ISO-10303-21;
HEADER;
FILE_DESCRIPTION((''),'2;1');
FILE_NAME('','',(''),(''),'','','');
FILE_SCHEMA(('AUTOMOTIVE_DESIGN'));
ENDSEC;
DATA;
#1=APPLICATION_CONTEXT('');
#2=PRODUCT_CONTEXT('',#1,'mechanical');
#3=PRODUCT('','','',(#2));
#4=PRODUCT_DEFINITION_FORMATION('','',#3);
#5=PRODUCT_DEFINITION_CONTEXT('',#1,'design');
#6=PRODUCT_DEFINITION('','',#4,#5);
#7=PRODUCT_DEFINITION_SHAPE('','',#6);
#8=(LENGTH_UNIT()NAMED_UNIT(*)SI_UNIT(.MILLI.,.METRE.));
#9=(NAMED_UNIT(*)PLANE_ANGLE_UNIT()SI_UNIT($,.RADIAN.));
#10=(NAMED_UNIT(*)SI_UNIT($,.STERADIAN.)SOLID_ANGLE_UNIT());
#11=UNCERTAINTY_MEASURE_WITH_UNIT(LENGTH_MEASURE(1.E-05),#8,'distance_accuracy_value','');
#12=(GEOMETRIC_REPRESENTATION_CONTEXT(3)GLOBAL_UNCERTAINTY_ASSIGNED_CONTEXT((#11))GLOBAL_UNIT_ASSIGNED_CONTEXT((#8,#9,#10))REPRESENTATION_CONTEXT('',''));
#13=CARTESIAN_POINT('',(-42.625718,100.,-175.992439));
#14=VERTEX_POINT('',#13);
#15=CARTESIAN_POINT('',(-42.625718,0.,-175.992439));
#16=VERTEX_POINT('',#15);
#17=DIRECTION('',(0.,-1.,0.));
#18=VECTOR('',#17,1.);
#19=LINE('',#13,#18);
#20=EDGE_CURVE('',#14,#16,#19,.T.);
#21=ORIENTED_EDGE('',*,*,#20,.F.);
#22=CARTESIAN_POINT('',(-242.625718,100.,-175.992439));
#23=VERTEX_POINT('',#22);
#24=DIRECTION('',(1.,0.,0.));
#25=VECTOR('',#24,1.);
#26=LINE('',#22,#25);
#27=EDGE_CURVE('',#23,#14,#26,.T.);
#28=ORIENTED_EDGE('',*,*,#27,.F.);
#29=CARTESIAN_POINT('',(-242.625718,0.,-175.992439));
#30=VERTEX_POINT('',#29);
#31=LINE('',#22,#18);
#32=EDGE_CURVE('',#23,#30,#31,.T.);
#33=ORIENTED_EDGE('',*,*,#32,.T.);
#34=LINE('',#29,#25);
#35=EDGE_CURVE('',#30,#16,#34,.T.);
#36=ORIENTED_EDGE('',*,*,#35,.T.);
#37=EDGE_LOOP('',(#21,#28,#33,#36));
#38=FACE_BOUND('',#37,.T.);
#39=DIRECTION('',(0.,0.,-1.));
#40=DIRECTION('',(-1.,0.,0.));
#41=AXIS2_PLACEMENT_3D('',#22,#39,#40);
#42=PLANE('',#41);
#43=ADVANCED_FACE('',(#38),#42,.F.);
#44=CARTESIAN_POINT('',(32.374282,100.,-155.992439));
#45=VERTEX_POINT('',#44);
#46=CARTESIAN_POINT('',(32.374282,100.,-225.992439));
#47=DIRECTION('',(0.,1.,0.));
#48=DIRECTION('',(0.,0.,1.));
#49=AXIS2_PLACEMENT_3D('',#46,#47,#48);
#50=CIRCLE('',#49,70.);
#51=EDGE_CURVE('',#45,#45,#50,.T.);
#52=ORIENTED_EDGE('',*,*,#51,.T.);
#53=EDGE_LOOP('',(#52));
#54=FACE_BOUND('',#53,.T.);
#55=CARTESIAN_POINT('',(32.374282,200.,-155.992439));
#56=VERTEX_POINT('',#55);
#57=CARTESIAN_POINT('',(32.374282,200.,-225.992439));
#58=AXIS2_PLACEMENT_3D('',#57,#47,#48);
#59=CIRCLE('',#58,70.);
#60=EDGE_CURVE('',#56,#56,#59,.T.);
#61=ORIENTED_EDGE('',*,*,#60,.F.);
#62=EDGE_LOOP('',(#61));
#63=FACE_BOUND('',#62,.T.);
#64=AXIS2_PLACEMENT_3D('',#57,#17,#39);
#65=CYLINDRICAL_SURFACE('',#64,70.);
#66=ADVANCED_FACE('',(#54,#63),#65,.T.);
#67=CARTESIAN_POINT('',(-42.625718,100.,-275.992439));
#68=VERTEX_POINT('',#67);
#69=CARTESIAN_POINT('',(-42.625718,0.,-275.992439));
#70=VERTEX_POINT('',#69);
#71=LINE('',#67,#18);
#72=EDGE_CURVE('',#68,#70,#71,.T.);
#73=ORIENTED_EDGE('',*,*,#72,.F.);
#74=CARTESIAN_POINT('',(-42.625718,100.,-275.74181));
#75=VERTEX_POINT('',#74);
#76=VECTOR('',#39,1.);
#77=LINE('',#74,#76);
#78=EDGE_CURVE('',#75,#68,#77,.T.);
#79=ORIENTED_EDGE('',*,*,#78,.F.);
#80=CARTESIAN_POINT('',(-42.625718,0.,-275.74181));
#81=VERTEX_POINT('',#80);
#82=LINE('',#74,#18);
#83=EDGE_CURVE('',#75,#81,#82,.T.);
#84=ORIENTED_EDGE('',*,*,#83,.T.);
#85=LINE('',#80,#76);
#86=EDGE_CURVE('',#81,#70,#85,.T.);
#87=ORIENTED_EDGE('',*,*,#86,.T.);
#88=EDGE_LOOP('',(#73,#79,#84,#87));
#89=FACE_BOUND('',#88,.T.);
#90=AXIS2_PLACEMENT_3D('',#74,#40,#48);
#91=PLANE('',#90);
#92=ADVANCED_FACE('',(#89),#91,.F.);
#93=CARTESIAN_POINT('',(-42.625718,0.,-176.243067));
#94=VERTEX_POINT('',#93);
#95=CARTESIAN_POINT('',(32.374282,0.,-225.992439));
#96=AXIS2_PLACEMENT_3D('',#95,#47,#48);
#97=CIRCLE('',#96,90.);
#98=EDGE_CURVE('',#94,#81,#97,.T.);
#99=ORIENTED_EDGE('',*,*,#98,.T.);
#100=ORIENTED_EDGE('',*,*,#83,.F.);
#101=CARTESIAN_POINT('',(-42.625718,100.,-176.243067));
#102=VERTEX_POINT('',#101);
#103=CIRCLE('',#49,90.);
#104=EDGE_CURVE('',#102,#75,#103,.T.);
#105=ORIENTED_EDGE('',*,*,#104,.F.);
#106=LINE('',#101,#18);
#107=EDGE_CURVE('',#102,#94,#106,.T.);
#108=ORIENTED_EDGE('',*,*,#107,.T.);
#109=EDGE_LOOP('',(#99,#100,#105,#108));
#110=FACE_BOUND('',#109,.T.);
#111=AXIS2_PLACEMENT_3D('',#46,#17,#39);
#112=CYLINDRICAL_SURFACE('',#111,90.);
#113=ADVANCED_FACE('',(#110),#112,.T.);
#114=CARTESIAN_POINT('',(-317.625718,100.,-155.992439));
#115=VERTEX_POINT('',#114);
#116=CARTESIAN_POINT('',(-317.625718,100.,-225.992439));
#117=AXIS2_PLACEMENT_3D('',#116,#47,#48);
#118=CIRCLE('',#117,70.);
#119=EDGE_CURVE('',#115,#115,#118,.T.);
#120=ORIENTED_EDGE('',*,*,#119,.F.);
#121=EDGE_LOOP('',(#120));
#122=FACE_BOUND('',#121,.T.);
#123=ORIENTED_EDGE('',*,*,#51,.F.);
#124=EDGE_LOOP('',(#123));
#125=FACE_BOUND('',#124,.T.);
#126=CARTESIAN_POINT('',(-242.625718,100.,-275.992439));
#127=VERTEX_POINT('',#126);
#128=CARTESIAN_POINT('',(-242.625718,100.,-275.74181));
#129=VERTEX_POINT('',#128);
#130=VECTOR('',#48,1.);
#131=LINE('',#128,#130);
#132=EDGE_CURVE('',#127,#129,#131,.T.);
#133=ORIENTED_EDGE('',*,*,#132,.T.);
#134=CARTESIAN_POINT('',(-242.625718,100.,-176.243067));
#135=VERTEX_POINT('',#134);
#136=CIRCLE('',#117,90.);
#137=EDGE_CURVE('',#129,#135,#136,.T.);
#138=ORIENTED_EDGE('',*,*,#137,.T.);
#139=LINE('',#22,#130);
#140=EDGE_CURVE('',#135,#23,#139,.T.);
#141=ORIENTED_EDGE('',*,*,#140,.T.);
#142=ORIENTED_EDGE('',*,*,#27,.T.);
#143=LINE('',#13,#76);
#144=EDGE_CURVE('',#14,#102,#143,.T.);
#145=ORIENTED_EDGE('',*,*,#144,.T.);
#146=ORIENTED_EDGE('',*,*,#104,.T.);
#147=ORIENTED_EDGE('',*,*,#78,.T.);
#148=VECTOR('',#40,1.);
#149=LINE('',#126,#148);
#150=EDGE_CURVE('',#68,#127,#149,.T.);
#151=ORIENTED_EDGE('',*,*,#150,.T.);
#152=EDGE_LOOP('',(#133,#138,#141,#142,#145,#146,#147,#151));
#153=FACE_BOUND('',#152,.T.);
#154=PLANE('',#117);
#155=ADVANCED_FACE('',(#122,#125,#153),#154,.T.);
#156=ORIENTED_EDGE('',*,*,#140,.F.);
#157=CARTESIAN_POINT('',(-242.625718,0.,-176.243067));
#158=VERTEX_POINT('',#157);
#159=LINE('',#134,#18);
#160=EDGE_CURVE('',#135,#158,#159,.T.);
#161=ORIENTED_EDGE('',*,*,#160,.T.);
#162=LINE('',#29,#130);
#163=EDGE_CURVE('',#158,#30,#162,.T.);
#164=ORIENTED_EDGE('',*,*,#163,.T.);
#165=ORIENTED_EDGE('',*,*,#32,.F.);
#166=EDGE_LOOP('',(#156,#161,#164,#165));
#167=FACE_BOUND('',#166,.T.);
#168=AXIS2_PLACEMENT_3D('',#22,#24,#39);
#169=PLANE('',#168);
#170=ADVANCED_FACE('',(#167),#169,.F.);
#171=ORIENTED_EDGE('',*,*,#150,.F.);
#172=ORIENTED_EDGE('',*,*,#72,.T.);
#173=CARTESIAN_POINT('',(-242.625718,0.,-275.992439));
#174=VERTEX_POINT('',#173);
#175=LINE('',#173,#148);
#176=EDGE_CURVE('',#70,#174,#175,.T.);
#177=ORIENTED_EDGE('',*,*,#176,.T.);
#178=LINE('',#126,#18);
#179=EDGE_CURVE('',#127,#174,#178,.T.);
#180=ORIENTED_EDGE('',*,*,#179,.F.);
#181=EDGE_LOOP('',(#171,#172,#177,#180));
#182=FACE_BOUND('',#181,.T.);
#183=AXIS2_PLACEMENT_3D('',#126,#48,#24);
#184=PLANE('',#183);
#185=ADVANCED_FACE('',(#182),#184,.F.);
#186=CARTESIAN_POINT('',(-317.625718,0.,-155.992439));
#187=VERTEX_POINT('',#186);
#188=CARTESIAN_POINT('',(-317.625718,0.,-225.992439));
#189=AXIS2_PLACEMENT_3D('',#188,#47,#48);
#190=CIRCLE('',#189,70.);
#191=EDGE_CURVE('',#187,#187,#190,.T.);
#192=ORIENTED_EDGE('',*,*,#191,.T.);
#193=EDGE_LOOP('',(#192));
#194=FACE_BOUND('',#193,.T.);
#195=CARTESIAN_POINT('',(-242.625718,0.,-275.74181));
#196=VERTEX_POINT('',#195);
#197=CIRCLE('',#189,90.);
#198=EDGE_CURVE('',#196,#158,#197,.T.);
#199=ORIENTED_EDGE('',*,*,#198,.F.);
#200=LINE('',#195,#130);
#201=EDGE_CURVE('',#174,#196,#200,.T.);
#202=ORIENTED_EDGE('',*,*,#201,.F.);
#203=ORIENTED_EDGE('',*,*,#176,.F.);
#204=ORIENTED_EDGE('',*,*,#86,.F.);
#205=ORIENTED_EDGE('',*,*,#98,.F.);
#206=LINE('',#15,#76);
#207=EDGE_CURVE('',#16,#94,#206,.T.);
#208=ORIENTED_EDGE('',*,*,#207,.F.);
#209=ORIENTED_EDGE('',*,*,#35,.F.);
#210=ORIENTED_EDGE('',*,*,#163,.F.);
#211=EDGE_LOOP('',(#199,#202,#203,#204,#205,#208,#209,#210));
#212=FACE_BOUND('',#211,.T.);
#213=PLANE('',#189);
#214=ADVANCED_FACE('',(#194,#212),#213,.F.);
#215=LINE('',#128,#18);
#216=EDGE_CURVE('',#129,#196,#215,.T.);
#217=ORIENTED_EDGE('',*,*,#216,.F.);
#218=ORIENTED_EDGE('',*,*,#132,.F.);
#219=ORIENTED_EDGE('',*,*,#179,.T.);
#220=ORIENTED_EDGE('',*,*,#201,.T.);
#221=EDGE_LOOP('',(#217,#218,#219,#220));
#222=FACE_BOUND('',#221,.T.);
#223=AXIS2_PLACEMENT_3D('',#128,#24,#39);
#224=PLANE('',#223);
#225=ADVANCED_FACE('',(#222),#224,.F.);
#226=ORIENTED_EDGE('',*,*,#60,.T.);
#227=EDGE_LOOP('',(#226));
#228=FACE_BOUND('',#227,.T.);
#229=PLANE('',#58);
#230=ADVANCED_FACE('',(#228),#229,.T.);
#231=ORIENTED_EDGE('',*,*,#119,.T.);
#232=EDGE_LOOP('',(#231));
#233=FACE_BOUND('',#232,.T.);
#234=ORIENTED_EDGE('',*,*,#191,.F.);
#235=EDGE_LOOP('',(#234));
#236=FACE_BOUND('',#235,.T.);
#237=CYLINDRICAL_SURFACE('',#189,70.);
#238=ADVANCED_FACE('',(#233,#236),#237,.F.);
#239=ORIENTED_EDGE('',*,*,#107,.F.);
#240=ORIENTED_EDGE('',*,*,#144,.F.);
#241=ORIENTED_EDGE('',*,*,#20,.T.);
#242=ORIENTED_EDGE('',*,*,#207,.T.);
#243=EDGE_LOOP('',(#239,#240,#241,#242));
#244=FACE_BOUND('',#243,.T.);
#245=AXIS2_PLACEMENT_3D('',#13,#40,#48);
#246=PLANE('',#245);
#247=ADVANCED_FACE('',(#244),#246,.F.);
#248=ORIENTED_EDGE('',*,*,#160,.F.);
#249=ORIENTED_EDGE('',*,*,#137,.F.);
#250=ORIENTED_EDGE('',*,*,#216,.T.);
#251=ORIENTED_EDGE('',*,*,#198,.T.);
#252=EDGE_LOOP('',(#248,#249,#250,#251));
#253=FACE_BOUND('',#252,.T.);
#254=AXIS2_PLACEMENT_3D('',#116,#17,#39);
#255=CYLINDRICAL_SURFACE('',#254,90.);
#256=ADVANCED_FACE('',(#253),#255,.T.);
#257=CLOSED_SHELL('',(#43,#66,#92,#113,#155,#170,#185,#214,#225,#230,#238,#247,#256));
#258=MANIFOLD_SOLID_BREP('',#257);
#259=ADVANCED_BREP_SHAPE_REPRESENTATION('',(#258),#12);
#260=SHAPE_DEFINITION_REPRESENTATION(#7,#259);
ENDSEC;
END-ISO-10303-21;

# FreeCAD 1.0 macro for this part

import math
import FreeCAD as App
import Part
import Sketcher

V = App.Vector
Q = App.Units.Quantity

doc = App.newDocument("Part")
body = doc.addObject("PartDesign::Body", "Body")

# Sketch on XZ plane
sketch1 = body.newObject("Sketcher::SketchObject", "Sketch")
sketch1.AttachmentSupport = (doc.getObject("XZ_Plane"), [""])
sketch1.MapMode = "FlatFace"
sketch1.addGeometry([
    Part.LineSegment(V(-242.63, -275.99, 0), V(-242.63, -275.74, 0)),  # 0
    Part.ArcOfCircle(Part.Circle(V(-317.63, -225.99, 0), V(0, 0, 1), 90), math.radians(34), math.radians(326)),  # 1
    Part.LineSegment(V(-242.63, -176.24, 0), V(-242.63, -175.99, 0)),  # 2
    Part.LineSegment(V(-242.63, -175.99, 0), V(-42.63, -175.99, 0)),  # 3
    Part.LineSegment(V(-42.63, -175.99, 0), V(-42.63, -176.24, 0)),  # 4
    Part.ArcOfCircle(Part.Circle(V(32.37, -225.99, 0), V(0, 0, 1), 90), math.radians(-146), math.radians(146)),  # 5
    Part.LineSegment(V(-42.63, -275.74, 0), V(-42.63, -275.99, 0)),  # 6
    Part.LineSegment(V(-42.63, -275.99, 0), V(-242.63, -275.99, 0)),  # 7
], False)
sketch1.addConstraint([
    Sketcher.Constraint("Coincident", 0, 2, 1, 2),
    Sketcher.Constraint("Coincident", 1, 1, 2, 1),
    Sketcher.Constraint("Coincident", 2, 2, 3, 1),
    Sketcher.Constraint("Coincident", 3, 2, 4, 1),
    Sketcher.Constraint("Coincident", 4, 2, 5, 2),
    Sketcher.Constraint("Coincident", 5, 1, 6, 1),
    Sketcher.Constraint("Coincident", 6, 2, 7, 1),
    Sketcher.Constraint("Coincident", 7, 2, 0, 1),
    Sketcher.Constraint("Vertical", 0),
    Sketcher.Constraint("Vertical", 2),
    Sketcher.Constraint("Horizontal", 3),
    Sketcher.Constraint("Vertical", 4),
    Sketcher.Constraint("Vertical", 6),
    Sketcher.Constraint("Horizontal", 7),
    Sketcher.Constraint("Equal", 1, 5),
    Sketcher.Constraint("Horizontal", 1, 3, 5, 3),
    Sketcher.Constraint("Horizontal", 1, 1, 4, 2),
    Sketcher.Constraint("Horizontal", 0, 2, 5, 1),
    Sketcher.Constraint("Vertical", 0, 2, 1, 1),
    Sketcher.Constraint("Equal", 0, 2),
    Sketcher.Constraint("Radius", 1, Q("90 mm")),
    Sketcher.Constraint("DistanceX", 3, 1, 3, 2, Q("200 mm")),
    Sketcher.Constraint("DistanceX", 1, 3, 5, 3, Q("350 mm")),
    Sketcher.Constraint("DistanceY", 1, 3, 2, 2, Q("50 mm")),
    Sketcher.Constraint("DistanceY", 1, 3, -1, 1, Q("225.992439 mm")),
    Sketcher.Constraint("DistanceX", 1, 3, -1, 1, Q("317.625718 mm")),
])
pad1 = body.newObject("PartDesign::Pad", "Pad")
pad1.Profile = sketch1
pad1.Length = 100
pad1.Reversed = True

# Sketch on XZ plane
sketch2 = body.newObject("Sketcher::SketchObject", "Sketch001")
sketch2.AttachmentSupport = (doc.getObject("XZ_Plane"), [""])
sketch2.MapMode = "FlatFace"
sketch2.AttachmentOffset = App.Placement(V(0, 0, -100), App.Rotation())
sketch2.addGeometry(Part.Circle(V(-318, -226, 0), V(0, 0, 1), 70), False)
sketch2.addConstraint([
    Sketcher.Constraint("Diameter", 0, Q("140 mm")),
    Sketcher.Constraint("DistanceY", 0, 3, -1, 1, Q("225.992439 mm")),
    Sketcher.Constraint("DistanceX", 0, 3, -1, 1, Q("317.625718 mm")),
])
pocket1 = body.newObject("PartDesign::Pocket", "Pocket")
pocket1.Profile = sketch2
pocket1.Length = 100
pocket1.Reversed = True

# Sketch on XZ plane
sketch3 = body.newObject("Sketcher::SketchObject", "Sketch002")
sketch3.AttachmentSupport = (doc.getObject("XZ_Plane"), [""])
sketch3.MapMode = "FlatFace"
sketch3.AttachmentOffset = App.Placement(V(0, 0, -100), App.Rotation())
sketch3.addGeometry(Part.Circle(V(32, -226, 0), V(0, 0, 1), 70), False)
sketch3.addConstraint([
    Sketcher.Constraint("Diameter", 0, Q("140 mm")),
    Sketcher.Constraint("DistanceY", 0, 3, -1, 1, Q("225.992439 mm")),
    Sketcher.Constraint("DistanceX", -1, 1, 0, 3, Q("32.374282 mm")),
])
pad2 = body.newObject("PartDesign::Pad", "Pad001")
pad2.Profile = sketch3
pad2.Length = 100
pad2.Reversed = True

doc.recompute()
